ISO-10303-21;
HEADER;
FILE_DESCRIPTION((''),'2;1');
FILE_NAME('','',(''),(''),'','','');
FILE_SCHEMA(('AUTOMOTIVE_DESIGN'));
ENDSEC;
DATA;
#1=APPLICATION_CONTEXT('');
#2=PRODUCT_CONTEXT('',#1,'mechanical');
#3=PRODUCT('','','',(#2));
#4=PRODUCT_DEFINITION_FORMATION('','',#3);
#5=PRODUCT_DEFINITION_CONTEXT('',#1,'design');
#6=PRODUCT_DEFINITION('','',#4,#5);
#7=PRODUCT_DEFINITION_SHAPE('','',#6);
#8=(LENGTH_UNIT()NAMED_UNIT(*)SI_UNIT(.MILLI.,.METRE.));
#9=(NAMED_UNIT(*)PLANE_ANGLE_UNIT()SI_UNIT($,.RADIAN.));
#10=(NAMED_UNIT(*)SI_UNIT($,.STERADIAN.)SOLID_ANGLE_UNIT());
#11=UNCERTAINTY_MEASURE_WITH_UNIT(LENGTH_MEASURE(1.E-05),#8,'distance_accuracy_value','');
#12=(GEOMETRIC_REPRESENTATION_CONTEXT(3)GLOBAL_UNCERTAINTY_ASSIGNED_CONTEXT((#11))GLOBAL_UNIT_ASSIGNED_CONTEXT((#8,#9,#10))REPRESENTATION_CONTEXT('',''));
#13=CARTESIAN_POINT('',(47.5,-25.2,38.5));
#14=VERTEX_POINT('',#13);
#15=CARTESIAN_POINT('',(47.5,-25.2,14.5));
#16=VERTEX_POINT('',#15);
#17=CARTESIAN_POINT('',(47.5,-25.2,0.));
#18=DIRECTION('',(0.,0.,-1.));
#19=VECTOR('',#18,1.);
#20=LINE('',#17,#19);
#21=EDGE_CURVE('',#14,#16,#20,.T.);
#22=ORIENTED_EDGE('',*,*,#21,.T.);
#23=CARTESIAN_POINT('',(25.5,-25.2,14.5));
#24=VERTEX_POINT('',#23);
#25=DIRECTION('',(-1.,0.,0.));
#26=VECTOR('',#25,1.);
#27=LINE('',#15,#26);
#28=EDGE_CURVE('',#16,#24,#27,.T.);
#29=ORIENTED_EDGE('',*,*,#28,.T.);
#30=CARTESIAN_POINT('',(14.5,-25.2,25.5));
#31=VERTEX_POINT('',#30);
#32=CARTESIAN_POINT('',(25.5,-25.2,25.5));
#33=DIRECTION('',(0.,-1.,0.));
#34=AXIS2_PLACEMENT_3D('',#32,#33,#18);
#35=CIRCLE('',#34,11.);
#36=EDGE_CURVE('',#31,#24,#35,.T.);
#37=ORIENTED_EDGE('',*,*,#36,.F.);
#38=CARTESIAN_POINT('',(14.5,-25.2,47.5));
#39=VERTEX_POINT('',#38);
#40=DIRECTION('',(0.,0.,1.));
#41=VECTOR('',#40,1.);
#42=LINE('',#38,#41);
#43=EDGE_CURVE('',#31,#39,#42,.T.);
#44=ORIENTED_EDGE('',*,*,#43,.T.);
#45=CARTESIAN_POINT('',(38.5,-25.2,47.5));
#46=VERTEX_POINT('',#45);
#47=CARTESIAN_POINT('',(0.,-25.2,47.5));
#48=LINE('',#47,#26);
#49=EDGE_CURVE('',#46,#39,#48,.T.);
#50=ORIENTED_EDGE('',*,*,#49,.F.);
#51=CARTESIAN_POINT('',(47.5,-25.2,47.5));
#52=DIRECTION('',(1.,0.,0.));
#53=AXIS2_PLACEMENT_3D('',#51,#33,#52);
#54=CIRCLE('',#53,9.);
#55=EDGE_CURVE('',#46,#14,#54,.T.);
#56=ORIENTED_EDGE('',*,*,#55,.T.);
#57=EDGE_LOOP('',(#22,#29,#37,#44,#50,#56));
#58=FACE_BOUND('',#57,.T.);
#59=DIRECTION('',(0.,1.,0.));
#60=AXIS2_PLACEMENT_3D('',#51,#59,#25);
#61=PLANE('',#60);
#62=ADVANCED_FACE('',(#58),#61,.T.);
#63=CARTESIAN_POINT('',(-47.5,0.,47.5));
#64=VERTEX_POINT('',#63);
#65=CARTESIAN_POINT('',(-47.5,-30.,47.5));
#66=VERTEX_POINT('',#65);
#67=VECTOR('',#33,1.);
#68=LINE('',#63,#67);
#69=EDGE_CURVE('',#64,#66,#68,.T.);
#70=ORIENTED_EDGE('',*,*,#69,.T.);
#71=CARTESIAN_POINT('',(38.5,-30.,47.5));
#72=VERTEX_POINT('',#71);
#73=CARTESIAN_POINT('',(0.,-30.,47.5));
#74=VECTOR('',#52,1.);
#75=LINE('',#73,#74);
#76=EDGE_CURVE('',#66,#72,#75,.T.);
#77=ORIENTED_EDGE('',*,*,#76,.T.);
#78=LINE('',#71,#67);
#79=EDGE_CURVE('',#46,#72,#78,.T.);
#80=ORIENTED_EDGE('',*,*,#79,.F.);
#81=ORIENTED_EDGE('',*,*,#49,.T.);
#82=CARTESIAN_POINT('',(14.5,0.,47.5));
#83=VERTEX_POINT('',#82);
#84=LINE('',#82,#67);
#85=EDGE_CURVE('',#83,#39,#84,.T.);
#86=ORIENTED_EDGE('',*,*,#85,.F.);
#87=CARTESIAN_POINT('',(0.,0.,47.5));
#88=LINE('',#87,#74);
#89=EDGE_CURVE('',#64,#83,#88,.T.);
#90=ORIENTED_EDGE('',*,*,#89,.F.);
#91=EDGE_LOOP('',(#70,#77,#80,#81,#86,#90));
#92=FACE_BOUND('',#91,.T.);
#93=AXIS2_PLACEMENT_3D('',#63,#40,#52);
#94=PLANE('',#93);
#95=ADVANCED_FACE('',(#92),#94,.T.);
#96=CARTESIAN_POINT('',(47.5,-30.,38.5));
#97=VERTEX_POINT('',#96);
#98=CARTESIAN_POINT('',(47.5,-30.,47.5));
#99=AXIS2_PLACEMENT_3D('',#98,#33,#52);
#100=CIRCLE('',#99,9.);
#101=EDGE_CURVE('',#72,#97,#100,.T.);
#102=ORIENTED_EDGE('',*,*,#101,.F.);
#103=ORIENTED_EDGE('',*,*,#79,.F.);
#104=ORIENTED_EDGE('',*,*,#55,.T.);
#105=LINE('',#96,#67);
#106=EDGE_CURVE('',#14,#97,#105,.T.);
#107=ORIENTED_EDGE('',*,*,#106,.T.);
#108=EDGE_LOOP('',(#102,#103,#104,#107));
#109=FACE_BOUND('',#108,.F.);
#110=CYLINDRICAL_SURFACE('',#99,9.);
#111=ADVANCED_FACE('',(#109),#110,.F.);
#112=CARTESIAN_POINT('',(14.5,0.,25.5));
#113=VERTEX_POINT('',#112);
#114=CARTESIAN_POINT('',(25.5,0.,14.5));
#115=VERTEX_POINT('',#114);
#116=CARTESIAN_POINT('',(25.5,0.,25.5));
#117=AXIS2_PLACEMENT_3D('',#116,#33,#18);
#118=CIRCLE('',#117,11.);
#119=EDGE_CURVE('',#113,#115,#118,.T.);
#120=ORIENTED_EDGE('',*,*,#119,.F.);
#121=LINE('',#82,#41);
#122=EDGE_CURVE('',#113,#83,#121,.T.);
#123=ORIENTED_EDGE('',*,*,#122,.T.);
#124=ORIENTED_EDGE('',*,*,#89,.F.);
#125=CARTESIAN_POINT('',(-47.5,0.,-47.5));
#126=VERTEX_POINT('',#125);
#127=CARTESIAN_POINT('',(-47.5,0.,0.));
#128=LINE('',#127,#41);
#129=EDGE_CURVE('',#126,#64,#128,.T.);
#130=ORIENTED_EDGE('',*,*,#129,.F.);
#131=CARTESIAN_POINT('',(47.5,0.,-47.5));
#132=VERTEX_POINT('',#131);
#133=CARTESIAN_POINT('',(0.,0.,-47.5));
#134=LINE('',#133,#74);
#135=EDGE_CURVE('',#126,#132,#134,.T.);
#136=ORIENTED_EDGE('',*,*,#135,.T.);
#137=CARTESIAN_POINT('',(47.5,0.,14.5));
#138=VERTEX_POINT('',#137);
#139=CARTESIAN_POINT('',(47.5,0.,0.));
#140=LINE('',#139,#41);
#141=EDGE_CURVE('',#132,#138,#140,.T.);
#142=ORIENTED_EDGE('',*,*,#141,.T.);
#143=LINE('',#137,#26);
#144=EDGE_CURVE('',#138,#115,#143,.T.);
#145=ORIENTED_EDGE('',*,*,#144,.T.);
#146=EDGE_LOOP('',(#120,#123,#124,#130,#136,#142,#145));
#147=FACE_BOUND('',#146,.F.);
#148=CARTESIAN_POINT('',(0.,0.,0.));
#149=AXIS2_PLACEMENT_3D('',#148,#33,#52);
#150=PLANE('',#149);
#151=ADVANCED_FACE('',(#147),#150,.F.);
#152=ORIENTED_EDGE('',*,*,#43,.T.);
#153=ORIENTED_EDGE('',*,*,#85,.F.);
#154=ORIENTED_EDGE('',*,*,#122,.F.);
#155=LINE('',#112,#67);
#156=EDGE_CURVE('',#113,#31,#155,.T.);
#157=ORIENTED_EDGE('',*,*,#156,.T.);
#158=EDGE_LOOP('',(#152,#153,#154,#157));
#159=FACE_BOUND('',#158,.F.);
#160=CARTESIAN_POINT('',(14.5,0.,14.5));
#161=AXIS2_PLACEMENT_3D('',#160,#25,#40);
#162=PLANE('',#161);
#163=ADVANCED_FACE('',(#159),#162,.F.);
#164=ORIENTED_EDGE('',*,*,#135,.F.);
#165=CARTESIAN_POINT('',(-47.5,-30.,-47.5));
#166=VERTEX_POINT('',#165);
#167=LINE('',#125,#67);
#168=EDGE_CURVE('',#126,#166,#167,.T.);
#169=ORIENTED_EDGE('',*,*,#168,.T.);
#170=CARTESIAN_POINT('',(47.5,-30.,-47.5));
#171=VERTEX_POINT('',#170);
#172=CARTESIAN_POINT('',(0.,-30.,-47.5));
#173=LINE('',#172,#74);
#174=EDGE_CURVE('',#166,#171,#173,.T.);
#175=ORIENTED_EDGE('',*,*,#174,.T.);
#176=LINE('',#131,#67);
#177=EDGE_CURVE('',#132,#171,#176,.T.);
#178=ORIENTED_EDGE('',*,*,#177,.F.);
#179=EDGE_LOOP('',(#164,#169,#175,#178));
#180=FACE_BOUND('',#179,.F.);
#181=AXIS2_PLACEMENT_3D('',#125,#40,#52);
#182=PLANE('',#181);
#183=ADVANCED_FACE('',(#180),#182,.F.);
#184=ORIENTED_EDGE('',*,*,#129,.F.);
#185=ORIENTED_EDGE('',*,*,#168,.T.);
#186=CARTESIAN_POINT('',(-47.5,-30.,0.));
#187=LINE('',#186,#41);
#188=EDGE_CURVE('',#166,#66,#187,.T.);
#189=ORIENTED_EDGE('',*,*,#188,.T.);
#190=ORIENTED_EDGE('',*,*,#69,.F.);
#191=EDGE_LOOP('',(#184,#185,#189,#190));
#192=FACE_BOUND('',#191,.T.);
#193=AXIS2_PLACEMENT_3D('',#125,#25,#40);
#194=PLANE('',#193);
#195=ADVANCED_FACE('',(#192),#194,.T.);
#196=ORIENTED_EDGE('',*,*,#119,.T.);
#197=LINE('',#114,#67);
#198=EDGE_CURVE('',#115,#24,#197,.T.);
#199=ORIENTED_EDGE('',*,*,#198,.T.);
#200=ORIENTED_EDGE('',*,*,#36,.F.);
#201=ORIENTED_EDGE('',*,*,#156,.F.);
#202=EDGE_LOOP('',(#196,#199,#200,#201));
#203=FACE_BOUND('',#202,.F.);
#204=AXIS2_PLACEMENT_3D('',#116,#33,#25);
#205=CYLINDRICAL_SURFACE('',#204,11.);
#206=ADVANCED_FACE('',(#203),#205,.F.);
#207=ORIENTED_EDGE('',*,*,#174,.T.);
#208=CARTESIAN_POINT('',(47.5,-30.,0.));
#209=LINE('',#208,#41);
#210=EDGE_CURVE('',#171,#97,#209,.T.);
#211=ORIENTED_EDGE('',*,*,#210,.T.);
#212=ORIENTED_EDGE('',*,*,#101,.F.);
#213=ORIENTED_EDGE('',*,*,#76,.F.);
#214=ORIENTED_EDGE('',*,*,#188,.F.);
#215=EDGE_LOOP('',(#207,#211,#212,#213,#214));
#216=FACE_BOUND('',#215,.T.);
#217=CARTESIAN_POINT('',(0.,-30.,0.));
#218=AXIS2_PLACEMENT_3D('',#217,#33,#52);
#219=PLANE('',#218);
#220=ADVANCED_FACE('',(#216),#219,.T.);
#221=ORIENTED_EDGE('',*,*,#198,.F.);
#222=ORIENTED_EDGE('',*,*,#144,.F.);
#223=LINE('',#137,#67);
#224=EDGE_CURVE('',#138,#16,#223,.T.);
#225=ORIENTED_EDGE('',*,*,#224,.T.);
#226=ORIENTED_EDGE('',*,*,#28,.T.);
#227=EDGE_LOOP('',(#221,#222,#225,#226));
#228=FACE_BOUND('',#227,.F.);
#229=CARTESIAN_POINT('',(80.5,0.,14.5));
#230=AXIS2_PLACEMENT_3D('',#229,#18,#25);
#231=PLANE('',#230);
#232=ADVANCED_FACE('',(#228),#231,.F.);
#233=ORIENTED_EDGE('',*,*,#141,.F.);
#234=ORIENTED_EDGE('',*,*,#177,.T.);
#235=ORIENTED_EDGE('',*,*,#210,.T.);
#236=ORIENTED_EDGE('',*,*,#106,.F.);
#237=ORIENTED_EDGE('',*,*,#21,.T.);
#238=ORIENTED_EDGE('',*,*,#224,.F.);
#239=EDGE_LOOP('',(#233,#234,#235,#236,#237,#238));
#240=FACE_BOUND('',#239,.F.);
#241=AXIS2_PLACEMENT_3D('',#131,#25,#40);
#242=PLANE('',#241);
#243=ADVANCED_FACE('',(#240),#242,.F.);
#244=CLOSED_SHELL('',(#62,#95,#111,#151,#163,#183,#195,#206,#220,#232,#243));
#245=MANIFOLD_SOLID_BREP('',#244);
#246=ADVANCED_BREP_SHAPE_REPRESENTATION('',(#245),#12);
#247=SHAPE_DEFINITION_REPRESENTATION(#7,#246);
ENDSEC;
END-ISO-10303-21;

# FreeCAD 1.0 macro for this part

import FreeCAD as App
import Part
import Sketcher
Q = App.Units.Quantity


def edges_at(feature, points):
    """Names of the edges that pass closest to the given points."""
    edges = feature.Shape.Edges
    near = lambda p: min(range(len(edges)), key=lambda i: edges[i].distToShape(Part.Vertex(*p))[0])
    return sorted({f"Edge{near(p) + 1}" for p in points})

doc = App.newDocument("Part")
body = doc.addObject("PartDesign::Body", "Body")

sketch1 = body.newObject("Sketcher::SketchObject", "Sketch")
sketch1.AttachmentSupport = (doc.getObject("XZ_Plane"), [""])
sketch1.MapMode = "FlatFace"
sketch1.addGeometry(Part.LineSegment(App.Vector(-48, 48, 0), App.Vector(-48, -48, 0)), False)
sketch1.addGeometry(Part.LineSegment(App.Vector(-48, -48, 0), App.Vector(48, -48, 0)), False)
sketch1.addGeometry(Part.LineSegment(App.Vector(48, -48, 0), App.Vector(48, 48, 0)), False)
sketch1.addGeometry(Part.LineSegment(App.Vector(48, 48, 0), App.Vector(-48, 48, 0)), False)
sketch1.addConstraint(Sketcher.Constraint("Coincident", 0, 2, 1, 1))
sketch1.addConstraint(Sketcher.Constraint("Coincident", 1, 2, 2, 1))
sketch1.addConstraint(Sketcher.Constraint("Coincident", 2, 2, 3, 1))
sketch1.addConstraint(Sketcher.Constraint("Coincident", 3, 2, 0, 1))
sketch1.addConstraint(Sketcher.Constraint("Vertical", 0))
sketch1.addConstraint(Sketcher.Constraint("Horizontal", 1))
sketch1.addConstraint(Sketcher.Constraint("Vertical", 2))
sketch1.addConstraint(Sketcher.Constraint("Horizontal", 3))
sketch1.addConstraint(Sketcher.Constraint("Symmetric", 0, 2, 2, 2, -1, 1))
sketch1.addConstraint(Sketcher.Constraint("Equal", 3, 0))
sketch1.addConstraint(Sketcher.Constraint("DistanceX", 1, 1, 1, 2, Q("95 mm")))
pad1 = body.newObject("PartDesign::Pad", "Pad")
pad1.Profile = sketch1
pad1.Length = 30

sketch2 = body.newObject("Sketcher::SketchObject", "Sketch001")
sketch2.AttachmentSupport = (doc.getObject("XZ_Plane"), [""])
sketch2.MapMode = "FlatFace"
sketch2.AttachmentOffset = App.Placement(App.Vector(0, 0, 30), App.Rotation())
sketch2.addGeometry(Part.Circle(App.Vector(48, 48, 0), App.Vector(0, 0, 1), 9), False)
sketch2.addConstraint(Sketcher.Constraint("Diameter", 0, Q("18 mm")))
sketch2.addConstraint(Sketcher.Constraint("DistanceX", -1, 1, 0, 3, Q("47.5 mm")))
sketch2.addConstraint(Sketcher.Constraint("DistanceY", -1, 1, 0, 3, Q("47.5 mm")))
pocket1 = body.newObject("PartDesign::Pocket", "Pocket")
pocket1.Profile = sketch2
pocket1.Length = 40

sketch3 = body.newObject("Sketcher::SketchObject", "Sketch002")
sketch3.AttachmentSupport = (doc.getObject("XZ_Plane"), [""])
sketch3.MapMode = "FlatFace"
sketch3.addGeometry(Part.LineSegment(App.Vector(80, 80, 0), App.Vector(80, 14, 0)), False)
sketch3.addGeometry(Part.LineSegment(App.Vector(80, 14, 0), App.Vector(14, 14, 0)), False)
sketch3.addGeometry(Part.LineSegment(App.Vector(14, 14, 0), App.Vector(14, 80, 0)), False)
sketch3.addGeometry(Part.LineSegment(App.Vector(14, 80, 0), App.Vector(80, 80, 0)), False)
sketch3.addConstraint(Sketcher.Constraint("Coincident", 0, 2, 1, 1))
sketch3.addConstraint(Sketcher.Constraint("Coincident", 1, 2, 2, 1))
sketch3.addConstraint(Sketcher.Constraint("Coincident", 2, 2, 3, 1))
sketch3.addConstraint(Sketcher.Constraint("Coincident", 3, 2, 0, 1))
sketch3.addConstraint(Sketcher.Constraint("Vertical", 0))
sketch3.addConstraint(Sketcher.Constraint("Horizontal", 1))
sketch3.addConstraint(Sketcher.Constraint("Vertical", 2))
sketch3.addConstraint(Sketcher.Constraint("Horizontal", 3))
sketch3.addConstraint(Sketcher.Constraint("Equal", 3, 0))
sketch3.addConstraint(Sketcher.Constraint("DistanceX", 1, 2, 1, 1, Q("66 mm")))
sketch3.addConstraint(Sketcher.Constraint("DistanceX", -1, 1, 0, 2, Q("80.5 mm")))
sketch3.addConstraint(Sketcher.Constraint("DistanceY", -1, 1, 0, 2, Q("14.5 mm")))
pocket2 = body.newObject("PartDesign::Pocket", "Pocket001")
pocket2.Profile = sketch3
pocket2.Length = 25.2
pocket2.Reversed = True
doc.recompute()

fillet = body.newObject("PartDesign::Fillet", "Fillet")
fillet.Base = (pocket2, edges_at(pocket2, [(14.5, -12.6, 14.5)]))
fillet.Radius = 11

doc.recompute()
